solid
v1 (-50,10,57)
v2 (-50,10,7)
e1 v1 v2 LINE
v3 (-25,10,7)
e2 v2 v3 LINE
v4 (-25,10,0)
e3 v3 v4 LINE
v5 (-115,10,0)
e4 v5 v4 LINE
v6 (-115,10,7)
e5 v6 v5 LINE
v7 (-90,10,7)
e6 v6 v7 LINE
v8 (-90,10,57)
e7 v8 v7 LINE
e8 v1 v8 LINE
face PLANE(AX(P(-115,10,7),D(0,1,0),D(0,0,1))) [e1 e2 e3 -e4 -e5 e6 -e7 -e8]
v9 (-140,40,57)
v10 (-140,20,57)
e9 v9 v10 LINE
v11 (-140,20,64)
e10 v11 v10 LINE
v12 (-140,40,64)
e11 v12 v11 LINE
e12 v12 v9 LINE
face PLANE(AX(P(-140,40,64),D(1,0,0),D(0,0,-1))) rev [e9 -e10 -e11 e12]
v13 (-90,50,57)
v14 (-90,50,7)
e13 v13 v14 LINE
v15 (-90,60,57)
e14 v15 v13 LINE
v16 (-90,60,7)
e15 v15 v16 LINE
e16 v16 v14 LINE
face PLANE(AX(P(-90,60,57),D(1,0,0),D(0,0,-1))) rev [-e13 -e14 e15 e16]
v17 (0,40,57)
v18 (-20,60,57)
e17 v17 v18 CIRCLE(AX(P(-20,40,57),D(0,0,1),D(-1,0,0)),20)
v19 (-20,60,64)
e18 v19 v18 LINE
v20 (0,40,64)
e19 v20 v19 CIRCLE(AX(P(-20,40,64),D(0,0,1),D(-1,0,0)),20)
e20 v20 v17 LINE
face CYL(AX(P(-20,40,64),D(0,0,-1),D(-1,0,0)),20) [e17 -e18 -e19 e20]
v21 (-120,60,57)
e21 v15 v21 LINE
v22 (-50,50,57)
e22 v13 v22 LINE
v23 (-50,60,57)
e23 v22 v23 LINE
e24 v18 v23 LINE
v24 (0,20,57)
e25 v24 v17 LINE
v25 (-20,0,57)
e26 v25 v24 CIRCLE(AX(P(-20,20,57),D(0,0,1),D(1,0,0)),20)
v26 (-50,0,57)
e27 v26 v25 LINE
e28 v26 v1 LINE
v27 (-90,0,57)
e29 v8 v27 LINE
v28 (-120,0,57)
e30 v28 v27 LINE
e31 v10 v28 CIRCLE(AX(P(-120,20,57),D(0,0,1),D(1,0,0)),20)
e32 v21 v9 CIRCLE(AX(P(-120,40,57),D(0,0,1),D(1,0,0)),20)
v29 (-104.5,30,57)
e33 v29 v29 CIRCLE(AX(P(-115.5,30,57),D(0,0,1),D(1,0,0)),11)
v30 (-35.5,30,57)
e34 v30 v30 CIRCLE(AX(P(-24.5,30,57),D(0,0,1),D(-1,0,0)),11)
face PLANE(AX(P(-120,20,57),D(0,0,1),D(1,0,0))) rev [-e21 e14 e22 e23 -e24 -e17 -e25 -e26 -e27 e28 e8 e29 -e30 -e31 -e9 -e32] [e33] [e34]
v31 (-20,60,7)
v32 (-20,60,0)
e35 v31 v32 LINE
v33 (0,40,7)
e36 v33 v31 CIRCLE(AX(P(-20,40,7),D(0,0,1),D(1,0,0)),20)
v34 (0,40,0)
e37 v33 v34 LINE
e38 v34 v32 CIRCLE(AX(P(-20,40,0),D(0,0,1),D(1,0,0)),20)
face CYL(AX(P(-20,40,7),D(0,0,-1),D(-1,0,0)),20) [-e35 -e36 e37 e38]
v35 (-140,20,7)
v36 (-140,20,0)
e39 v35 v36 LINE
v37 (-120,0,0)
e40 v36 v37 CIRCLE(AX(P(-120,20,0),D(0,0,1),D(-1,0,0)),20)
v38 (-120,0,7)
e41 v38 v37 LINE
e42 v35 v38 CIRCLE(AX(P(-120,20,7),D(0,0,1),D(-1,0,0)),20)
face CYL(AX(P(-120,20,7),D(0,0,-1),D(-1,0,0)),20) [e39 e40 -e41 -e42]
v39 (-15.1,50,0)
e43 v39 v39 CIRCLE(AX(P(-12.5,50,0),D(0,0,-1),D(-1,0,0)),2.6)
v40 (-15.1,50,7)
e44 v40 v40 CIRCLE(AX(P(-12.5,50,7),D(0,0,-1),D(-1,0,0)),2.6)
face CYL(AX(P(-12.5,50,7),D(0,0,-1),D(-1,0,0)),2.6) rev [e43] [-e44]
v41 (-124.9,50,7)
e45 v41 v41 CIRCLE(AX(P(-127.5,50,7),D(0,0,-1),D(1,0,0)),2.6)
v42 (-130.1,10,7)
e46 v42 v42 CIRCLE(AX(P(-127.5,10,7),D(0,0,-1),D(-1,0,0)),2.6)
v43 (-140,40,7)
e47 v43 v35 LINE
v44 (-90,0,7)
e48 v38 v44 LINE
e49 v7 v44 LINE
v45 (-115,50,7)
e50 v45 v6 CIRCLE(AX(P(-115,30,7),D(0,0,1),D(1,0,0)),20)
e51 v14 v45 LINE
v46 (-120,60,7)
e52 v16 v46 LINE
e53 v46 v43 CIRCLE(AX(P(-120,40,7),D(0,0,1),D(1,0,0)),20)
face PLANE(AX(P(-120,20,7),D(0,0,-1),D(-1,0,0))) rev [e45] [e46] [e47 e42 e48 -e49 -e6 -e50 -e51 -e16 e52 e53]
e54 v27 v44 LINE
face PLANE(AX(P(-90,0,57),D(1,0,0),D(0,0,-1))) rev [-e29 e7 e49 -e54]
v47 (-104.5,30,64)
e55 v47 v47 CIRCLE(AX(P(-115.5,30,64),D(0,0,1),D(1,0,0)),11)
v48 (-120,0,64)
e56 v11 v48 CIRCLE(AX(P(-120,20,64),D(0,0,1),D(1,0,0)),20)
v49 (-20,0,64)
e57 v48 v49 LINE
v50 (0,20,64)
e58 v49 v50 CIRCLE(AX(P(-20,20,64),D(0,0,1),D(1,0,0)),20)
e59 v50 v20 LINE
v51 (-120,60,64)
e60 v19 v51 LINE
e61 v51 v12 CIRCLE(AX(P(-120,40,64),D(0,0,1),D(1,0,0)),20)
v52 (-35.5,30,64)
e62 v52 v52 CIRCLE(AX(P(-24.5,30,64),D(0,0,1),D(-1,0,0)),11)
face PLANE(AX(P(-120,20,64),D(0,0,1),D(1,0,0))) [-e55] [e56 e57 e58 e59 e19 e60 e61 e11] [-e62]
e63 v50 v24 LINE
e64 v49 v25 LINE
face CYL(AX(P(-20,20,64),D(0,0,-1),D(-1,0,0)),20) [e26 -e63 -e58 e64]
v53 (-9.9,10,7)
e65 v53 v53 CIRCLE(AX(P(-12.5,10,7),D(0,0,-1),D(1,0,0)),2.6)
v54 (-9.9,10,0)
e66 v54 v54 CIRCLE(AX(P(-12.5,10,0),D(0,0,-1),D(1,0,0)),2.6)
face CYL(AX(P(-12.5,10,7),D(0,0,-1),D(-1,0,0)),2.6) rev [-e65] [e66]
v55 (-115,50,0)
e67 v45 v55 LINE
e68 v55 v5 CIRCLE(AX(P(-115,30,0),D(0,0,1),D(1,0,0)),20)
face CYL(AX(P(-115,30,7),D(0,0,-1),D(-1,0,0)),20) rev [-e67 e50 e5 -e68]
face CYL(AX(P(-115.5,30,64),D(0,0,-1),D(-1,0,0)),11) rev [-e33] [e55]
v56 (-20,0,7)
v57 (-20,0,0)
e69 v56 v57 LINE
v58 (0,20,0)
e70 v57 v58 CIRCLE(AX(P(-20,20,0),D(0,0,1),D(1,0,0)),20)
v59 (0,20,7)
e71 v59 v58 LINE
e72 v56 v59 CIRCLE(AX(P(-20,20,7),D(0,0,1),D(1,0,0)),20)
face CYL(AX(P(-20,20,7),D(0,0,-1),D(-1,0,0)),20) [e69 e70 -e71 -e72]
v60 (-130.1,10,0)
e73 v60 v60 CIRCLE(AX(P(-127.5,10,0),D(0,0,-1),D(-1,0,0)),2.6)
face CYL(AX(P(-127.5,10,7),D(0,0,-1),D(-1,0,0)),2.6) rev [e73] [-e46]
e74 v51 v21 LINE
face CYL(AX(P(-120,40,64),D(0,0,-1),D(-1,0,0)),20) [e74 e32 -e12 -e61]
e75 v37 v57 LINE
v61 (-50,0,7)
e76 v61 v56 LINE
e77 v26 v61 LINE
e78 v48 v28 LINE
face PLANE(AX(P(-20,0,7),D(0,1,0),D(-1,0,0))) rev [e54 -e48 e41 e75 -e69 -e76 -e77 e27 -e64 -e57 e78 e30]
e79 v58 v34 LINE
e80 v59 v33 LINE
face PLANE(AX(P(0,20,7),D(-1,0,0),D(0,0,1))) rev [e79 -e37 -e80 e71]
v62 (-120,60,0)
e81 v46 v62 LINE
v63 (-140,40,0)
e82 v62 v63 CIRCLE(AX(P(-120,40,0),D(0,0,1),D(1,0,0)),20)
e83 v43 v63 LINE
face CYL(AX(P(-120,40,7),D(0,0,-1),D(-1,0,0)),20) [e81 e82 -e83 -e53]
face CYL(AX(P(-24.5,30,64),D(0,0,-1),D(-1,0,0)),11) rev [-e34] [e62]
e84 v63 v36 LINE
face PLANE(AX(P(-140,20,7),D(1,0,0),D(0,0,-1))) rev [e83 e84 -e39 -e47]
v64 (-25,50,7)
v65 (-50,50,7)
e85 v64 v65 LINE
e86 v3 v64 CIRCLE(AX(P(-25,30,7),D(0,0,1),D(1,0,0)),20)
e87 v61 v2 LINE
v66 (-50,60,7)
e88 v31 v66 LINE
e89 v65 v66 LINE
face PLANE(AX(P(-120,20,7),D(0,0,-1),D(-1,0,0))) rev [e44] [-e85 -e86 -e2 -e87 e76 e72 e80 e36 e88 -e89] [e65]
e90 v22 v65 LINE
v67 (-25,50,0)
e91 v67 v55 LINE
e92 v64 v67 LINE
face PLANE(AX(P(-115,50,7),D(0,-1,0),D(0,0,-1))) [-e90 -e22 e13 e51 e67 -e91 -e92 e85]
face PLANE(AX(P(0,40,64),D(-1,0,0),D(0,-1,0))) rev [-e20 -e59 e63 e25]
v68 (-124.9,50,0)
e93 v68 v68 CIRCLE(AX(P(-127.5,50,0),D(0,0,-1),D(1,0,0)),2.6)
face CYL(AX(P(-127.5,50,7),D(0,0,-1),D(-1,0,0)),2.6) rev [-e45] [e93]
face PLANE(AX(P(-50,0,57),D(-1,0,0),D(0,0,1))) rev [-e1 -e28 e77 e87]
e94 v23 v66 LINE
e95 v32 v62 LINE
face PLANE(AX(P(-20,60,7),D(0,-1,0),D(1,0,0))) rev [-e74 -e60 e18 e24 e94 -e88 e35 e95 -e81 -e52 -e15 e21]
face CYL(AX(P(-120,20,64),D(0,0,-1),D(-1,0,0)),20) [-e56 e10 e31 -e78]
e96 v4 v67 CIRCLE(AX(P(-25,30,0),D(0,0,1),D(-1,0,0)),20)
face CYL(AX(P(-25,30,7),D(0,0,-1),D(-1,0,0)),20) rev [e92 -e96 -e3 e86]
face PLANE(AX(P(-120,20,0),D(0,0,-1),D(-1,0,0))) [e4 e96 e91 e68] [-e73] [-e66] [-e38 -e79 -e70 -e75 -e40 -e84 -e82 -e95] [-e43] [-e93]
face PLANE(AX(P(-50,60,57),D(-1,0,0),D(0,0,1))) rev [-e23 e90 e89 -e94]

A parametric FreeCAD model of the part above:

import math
import FreeCAD as App
import Part
import Sketcher

V = App.Vector
Q = App.Units.Quantity

doc = App.newDocument("Part")
body = doc.addObject("PartDesign::Body", "Body")

# Sketch on XY plane
sketch1 = body.newObject("Sketcher::SketchObject", "Sketch")
sketch1.AttachmentSupport = (doc.getObject("XY_Plane"), [""])
sketch1.MapMode = "FlatFace"
sketch1.addGeometry(Part.LineSegment(V(-120, 0, 0), V(-20, 0, 0)), False)
sketch1.addGeometry(Part.ArcOfCircle(Part.Circle(V(-20, 20, 0), V(0, 0, 1), 20), math.radians(-90), math.radians(0)), False)
sketch1.addGeometry(Part.LineSegment(V(0, 20, 0), V(0, 40, 0)), False)
sketch1.addGeometry(Part.ArcOfCircle(Part.Circle(V(-20, 40, 0), V(0, 0, 1), 20), math.radians(0), math.radians(90)), False)
sketch1.addGeometry(Part.LineSegment(V(-20, 60, 0), V(-120, 60, 0)), False)
sketch1.addGeometry(Part.ArcOfCircle(Part.Circle(V(-120, 40, 0), V(0, 0, 1), 20), math.radians(90), math.radians(180)), False)
sketch1.addGeometry(Part.LineSegment(V(-140, 40, 0), V(-140, 20, 0)), False)
sketch1.addGeometry(Part.ArcOfCircle(Part.Circle(V(-120, 20, 0), V(0, 0, 1), 20), math.radians(180), math.radians(270)), False)
sketch1.addGeometry(Part.LineSegment(V(-115, 50, 0), V(-25, 50, 0)), False)
sketch1.addGeometry(Part.ArcOfCircle(Part.Circle(V(-25, 30, 0), V(0, 0, 1), 20), math.radians(0), math.radians(90)), False)
sketch1.addGeometry(Part.ArcOfCircle(Part.Circle(V(-25, 30, 0), V(0, 0, 1), 20), math.radians(-90), math.radians(0)), False)
sketch1.addGeometry(Part.LineSegment(V(-25, 10, 0), V(-115, 10, 0)), False)
sketch1.addGeometry(Part.ArcOfCircle(Part.Circle(V(-115, 30, 0), V(0, 0, 1), 20), math.radians(180), math.radians(270)), False)
sketch1.addGeometry(Part.ArcOfCircle(Part.Circle(V(-115, 30, 0), V(0, 0, 1), 20), math.radians(90), math.radians(180)), False)
sketch1.addConstraint(Sketcher.Constraint("Tangent", 0, 2, 1, 1))
sketch1.addConstraint(Sketcher.Constraint("Tangent", 1, 2, 2, 1))
sketch1.addConstraint(Sketcher.Constraint("Tangent", 2, 2, 3, 1))
sketch1.addConstraint(Sketcher.Constraint("Tangent", 3, 2, 4, 1))
sketch1.addConstraint(Sketcher.Constraint("Tangent", 4, 2, 5, 1))
sketch1.addConstraint(Sketcher.Constraint("Tangent", 5, 2, 6, 1))
sketch1.addConstraint(Sketcher.Constraint("Tangent", 6, 2, 7, 1))
sketch1.addConstraint(Sketcher.Constraint("Tangent", 7, 2, 0, 1))
sketch1.addConstraint(Sketcher.Constraint("Tangent", 8, 2, 9, 2))
sketch1.addConstraint(Sketcher.Constraint("Tangent", 9, 1, 10, 2))
sketch1.addConstraint(Sketcher.Constraint("Tangent", 10, 1, 11, 1))
sketch1.addConstraint(Sketcher.Constraint("Tangent", 11, 2, 12, 2))
sketch1.addConstraint(Sketcher.Constraint("Tangent", 12, 1, 13, 2))
sketch1.addConstraint(Sketcher.Constraint("Tangent", 13, 1, 8, 1))
sketch1.addConstraint(Sketcher.Constraint("Horizontal", 0))
sketch1.addConstraint(Sketcher.Constraint("Vertical", 2))
sketch1.addConstraint(Sketcher.Constraint("Horizontal", 4))
sketch1.addConstraint(Sketcher.Constraint("Vertical", 6))
sketch1.addConstraint(Sketcher.Constraint("Horizontal", 8))
sketch1.addConstraint(Sketcher.Constraint("Horizontal", 11))
sketch1.addConstraint(Sketcher.Constraint("Equal", 1, 3))
sketch1.addConstraint(Sketcher.Constraint("Equal", 3, 5))
sketch1.addConstraint(Sketcher.Constraint("Equal", 5, 7))
sketch1.addConstraint(Sketcher.Constraint("Equal", 7, 9))
sketch1.addConstraint(Sketcher.Constraint("Equal", 9, 10))
sketch1.addConstraint(Sketcher.Constraint("Equal", 10, 12))
sketch1.addConstraint(Sketcher.Constraint("PointOnObject", 0, 2, -1))
sketch1.addConstraint(Sketcher.Constraint("PointOnObject", 1, 2, -2))
sketch1.addConstraint(Sketcher.Constraint("Horizontal", 13, 3, 9, 1))
sketch1.addConstraint(Sketcher.Constraint("Horizontal", 9, 1, 12, 1))
sketch1.addConstraint(Sketcher.Constraint("Radius", 1, Q("20 mm")))
sketch1.addConstraint(Sketcher.Constraint("DistanceX", 0, 1, 0, 2, Q("100 mm")))
sketch1.addConstraint(Sketcher.Constraint("DistanceX", 8, 1, 8, 2, Q("90 mm")))
sketch1.addConstraint(Sketcher.Constraint("DistanceY", 2, 1, 2, 2, Q("20 mm")))
sketch1.addConstraint(Sketcher.Constraint("DistanceX", 9, 3, -1, 1, Q("25 mm")))
sketch1.addConstraint(Sketcher.Constraint("DistanceY", -1, 1, 9, 3, Q("30 mm")))
pad1 = body.newObject("PartDesign::Pad", "Pad")
pad1.Profile = sketch1
pad1.Length = 7

# Sketch on XY plane
sketch2 = body.newObject("Sketcher::SketchObject", "Sketch001")
sketch2.AttachmentSupport = (doc.getObject("XY_Plane"), [""])
sketch2.MapMode = "FlatFace"
sketch2.AttachmentOffset = App.Placement(V(0, 0, 7), App.Rotation())
sketch2.addGeometry(Part.LineSegment(V(-90, 60, 0), V(-90, 50, 0)), False)
sketch2.addGeometry(Part.LineSegment(V(-90, 50, 0), V(-50, 50, 0)), False)
sketch2.addGeometry(Part.LineSegment(V(-50, 50, 0), V(-50, 60, 0)), False)
sketch2.addGeometry(Part.LineSegment(V(-50, 60, 0), V(-90, 60, 0)), False)
sketch2.addGeometry(Part.LineSegment(V(-90, 10, 0), V(-90, 0, 0)), False)
sketch2.addGeometry(Part.LineSegment(V(-90, 0, 0), V(-50, 0, 0)), False)
sketch2.addGeometry(Part.LineSegment(V(-50, 0, 0), V(-50, 10, 0)), False)
sketch2.addGeometry(Part.LineSegment(V(-50, 10, 0), V(-90, 10, 0)), False)
sketch2.addConstraint(Sketcher.Constraint("Coincident", 0, 2, 1, 1))
sketch2.addConstraint(Sketcher.Constraint("Coincident", 1, 2, 2, 1))
sketch2.addConstraint(Sketcher.Constraint("Coincident", 2, 2, 3, 1))
sketch2.addConstraint(Sketcher.Constraint("Coincident", 3, 2, 0, 1))
sketch2.addConstraint(Sketcher.Constraint("Coincident", 4, 2, 5, 1))
sketch2.addConstraint(Sketcher.Constraint("Coincident", 5, 2, 6, 1))
sketch2.addConstraint(Sketcher.Constraint("Coincident", 6, 2, 7, 1))
sketch2.addConstraint(Sketcher.Constraint("Coincident", 7, 2, 4, 1))
sketch2.addConstraint(Sketcher.Constraint("Vertical", 0))
sketch2.addConstraint(Sketcher.Constraint("Horizontal", 1))
sketch2.addConstraint(Sketcher.Constraint("Vertical", 2))
sketch2.addConstraint(Sketcher.Constraint("Horizontal", 3))
sketch2.addConstraint(Sketcher.Constraint("Vertical", 4))
sketch2.addConstraint(Sketcher.Constraint("Horizontal", 5))
sketch2.addConstraint(Sketcher.Constraint("Vertical", 6))
sketch2.addConstraint(Sketcher.Constraint("Horizontal", 7))
sketch2.addConstraint(Sketcher.Constraint("PointOnObject", 4, 2, -1))
sketch2.addConstraint(Sketcher.Constraint("Vertical", 3, 2, 4, 2))
sketch2.addConstraint(Sketcher.Constraint("Vertical", 2, 2, 5, 2))
sketch2.addConstraint(Sketcher.Constraint("Equal", 2, 4))
sketch2.addConstraint(Sketcher.Constraint("DistanceX", 1, 1, 1, 2, Q("40 mm")))
sketch2.addConstraint(Sketcher.Constraint("DistanceY", 0, 2, 0, 1, Q("10 mm")))
sketch2.addConstraint(Sketcher.Constraint("DistanceX", 0, 2, -1, 1, Q("90 mm")))
sketch2.addConstraint(Sketcher.Constraint("DistanceY", -1, 1, 0, 2, Q("50 mm")))
pad2 = body.newObject("PartDesign::Pad", "Pad001")
pad2.Profile = sketch2
pad2.Length = 50

# Sketch on XY plane
sketch3 = body.newObject("Sketcher::SketchObject", "Sketch002")
sketch3.AttachmentSupport = (doc.getObject("XY_Plane"), [""])
sketch3.MapMode = "FlatFace"
sketch3.AttachmentOffset = App.Placement(V(0, 0, 57), App.Rotation())
sketch3.addGeometry(Part.LineSegment(V(-20, 60, 0), V(-120, 60, 0)), False)
sketch3.addGeometry(Part.ArcOfCircle(Part.Circle(V(-120, 40, 0), V(0, 0, 1), 20), math.radians(90), math.radians(180)), False)
sketch3.addGeometry(Part.LineSegment(V(-140, 40, 0), V(-140, 20, 0)), False)
sketch3.addGeometry(Part.ArcOfCircle(Part.Circle(V(-120, 20, 0), V(0, 0, 1), 20), math.radians(180), math.radians(270)), False)
sketch3.addGeometry(Part.LineSegment(V(-120, 0, 0), V(-20, 0, 0)), False)
sketch3.addGeometry(Part.ArcOfCircle(Part.Circle(V(-20, 20, 0), V(0, 0, 1), 20), math.radians(-90), math.radians(0)), False)
sketch3.addGeometry(Part.LineSegment(V(0, 20, 0), V(0, 40, 0)), False)
sketch3.addGeometry(Part.ArcOfCircle(Part.Circle(V(-20, 40, 0), V(0, 0, 1), 20), math.radians(0), math.radians(90)), False)
sketch3.addGeometry(Part.Circle(V(-24.5, 30, 0), V(0, 0, 1), 11), False)
sketch3.addGeometry(Part.Circle(V(-115.5, 30, 0), V(0, 0, 1), 11), False)
sketch3.addConstraint(Sketcher.Constraint("Tangent", 0, 2, 1, 1))
sketch3.addConstraint(Sketcher.Constraint("Tangent", 1, 2, 2, 1))
sketch3.addConstraint(Sketcher.Constraint("Tangent", 2, 2, 3, 1))
sketch3.addConstraint(Sketcher.Constraint("Tangent", 3, 2, 4, 1))
sketch3.addConstraint(Sketcher.Constraint("Tangent", 4, 2, 5, 1))
sketch3.addConstraint(Sketcher.Constraint("Tangent", 5, 2, 6, 1))
sketch3.addConstraint(Sketcher.Constraint("Tangent", 6, 2, 7, 1))
sketch3.addConstraint(Sketcher.Constraint("Tangent", 7, 2, 0, 1))
sketch3.addConstraint(Sketcher.Constraint("Horizontal", 0))
sketch3.addConstraint(Sketcher.Constraint("Vertical", 2))
sketch3.addConstraint(Sketcher.Constraint("Horizontal", 4))
sketch3.addConstraint(Sketcher.Constraint("Vertical", 6))
sketch3.addConstraint(Sketcher.Constraint("Equal", 1, 3))
sketch3.addConstraint(Sketcher.Constraint("Equal", 3, 5))
sketch3.addConstraint(Sketcher.Constraint("Equal", 5, 7))
sketch3.addConstraint(Sketcher.Constraint("Equal", 8, 9))
sketch3.addConstraint(Sketcher.Constraint("PointOnObject", 3, 2, -1))
sketch3.addConstraint(Sketcher.Constraint("PointOnObject", 5, 2, -2))
sketch3.addConstraint(Sketcher.Constraint("Horizontal", 8, 3, 9, 3))
sketch3.addConstraint(Sketcher.Constraint("Diameter", 8, Q("22 mm")))
sketch3.addConstraint(Sketcher.Constraint("Radius", 1, Q("20 mm")))
sketch3.addConstraint(Sketcher.Constraint("DistanceX", 0, 2, 0, 1, Q("100 mm")))
sketch3.addConstraint(Sketcher.Constraint("DistanceY", 2, 2, 2, 1, Q("20 mm")))
sketch3.addConstraint(Sketcher.Constraint("DistanceY", -1, 1, 8, 3, Q("30 mm")))
sketch3.addConstraint(Sketcher.Constraint("DistanceX", 9, 3, 8, 3, Q("91 mm")))
sketch3.addConstraint(Sketcher.Constraint("DistanceX", 8, 3, -1, 1, Q("24.5 mm")))
pad3 = body.newObject("PartDesign::Pad", "Pad002")
pad3.Profile = sketch3
pad3.Length = 7

# Sketch on XY plane
sketch4 = body.newObject("Sketcher::SketchObject", "Sketch003")
sketch4.AttachmentSupport = (doc.getObject("XY_Plane"), [""])
sketch4.MapMode = "FlatFace"
sketch4.addGeometry(Part.Circle(V(-12.5, 50, 0), V(0, 0, 1), 2.6), False)
sketch4.addGeometry(Part.Circle(V(-127.5, 50, 0), V(0, 0, 1), 2.6), False)
sketch4.addGeometry(Part.Circle(V(-127.5, 10, 0), V(0, 0, 1), 2.6), False)
sketch4.addGeometry(Part.Circle(V(-12.5, 10, 0), V(0, 0, 1), 2.6), False)
sketch4.addConstraint(Sketcher.Constraint("Equal", 0, 1))
sketch4.addConstraint(Sketcher.Constraint("Equal", 1, 2))
sketch4.addConstraint(Sketcher.Constraint("Equal", 2, 3))
sketch4.addConstraint(Sketcher.Constraint("Horizontal", 0, 3, 1, 3))
sketch4.addConstraint(Sketcher.Constraint("Horizontal", 2, 3, 3, 3))
sketch4.addConstraint(Sketcher.Constraint("Vertical", 1, 3, 2, 3))
sketch4.addConstraint(Sketcher.Constraint("Vertical", 0, 3, 3, 3))
sketch4.addConstraint(Sketcher.Constraint("Diameter", 0, Q("5.2 mm")))
sketch4.addConstraint(Sketcher.Constraint("DistanceY", -1, 1, 0, 3, Q("50 mm")))
sketch4.addConstraint(Sketcher.Constraint("DistanceY", -1, 1, 2, 3, Q("10 mm")))
sketch4.addConstraint(Sketcher.Constraint("DistanceX", 1, 3, 0, 3, Q("115 mm")))
sketch4.addConstraint(Sketcher.Constraint("DistanceX", 0, 3, -1, 1, Q("12.5 mm")))
pocket1 = body.newObject("PartDesign::Pocket", "Pocket")
pocket1.Profile = sketch4
pocket1.Length = 7
pocket1.Reversed = True

doc.recompute()
